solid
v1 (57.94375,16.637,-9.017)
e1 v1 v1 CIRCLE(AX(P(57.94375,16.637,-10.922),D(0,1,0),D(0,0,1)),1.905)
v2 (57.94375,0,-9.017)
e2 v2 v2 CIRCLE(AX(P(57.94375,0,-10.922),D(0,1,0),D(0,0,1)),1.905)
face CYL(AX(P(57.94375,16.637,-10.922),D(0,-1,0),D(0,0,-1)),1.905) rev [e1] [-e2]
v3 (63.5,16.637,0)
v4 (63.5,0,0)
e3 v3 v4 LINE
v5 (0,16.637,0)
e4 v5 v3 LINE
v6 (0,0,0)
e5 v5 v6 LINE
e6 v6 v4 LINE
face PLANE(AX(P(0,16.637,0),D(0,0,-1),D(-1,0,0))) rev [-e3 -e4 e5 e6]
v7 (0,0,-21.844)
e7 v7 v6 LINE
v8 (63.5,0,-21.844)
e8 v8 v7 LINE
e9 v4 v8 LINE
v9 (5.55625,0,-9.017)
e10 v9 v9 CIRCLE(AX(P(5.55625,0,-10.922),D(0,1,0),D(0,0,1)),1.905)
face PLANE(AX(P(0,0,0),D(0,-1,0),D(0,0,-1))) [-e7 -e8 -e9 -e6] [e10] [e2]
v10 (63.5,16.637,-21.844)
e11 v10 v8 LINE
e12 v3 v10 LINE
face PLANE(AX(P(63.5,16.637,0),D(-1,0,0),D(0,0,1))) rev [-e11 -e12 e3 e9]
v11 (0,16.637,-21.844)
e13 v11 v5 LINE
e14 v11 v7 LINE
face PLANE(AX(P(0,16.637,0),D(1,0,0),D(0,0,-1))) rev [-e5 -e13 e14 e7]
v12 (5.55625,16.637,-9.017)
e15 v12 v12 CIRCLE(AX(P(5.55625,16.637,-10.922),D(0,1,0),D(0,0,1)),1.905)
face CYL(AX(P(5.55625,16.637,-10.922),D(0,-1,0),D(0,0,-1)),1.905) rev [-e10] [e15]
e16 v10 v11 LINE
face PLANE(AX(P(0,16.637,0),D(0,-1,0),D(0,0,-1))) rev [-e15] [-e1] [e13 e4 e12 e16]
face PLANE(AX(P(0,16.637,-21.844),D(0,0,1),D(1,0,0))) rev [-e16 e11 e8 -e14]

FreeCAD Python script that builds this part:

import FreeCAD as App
import Part
import Sketcher
Q = App.Units.Quantity

doc = App.newDocument("Part")
body = doc.addObject("PartDesign::Body", "Body")

sketch1 = body.newObject("Sketcher::SketchObject", "Sketch")
sketch1.AttachmentSupport = (doc.getObject("XZ_Plane"), [""])
sketch1.MapMode = "FlatFace"
sketch1.addGeometry(Part.LineSegment(App.Vector(0, -21.8, 0), App.Vector(0, 0, 0)), False)
sketch1.addGeometry(Part.LineSegment(App.Vector(0, 0, 0), App.Vector(63.5, 0, 0)), False)
sketch1.addGeometry(Part.LineSegment(App.Vector(63.5, 0, 0), App.Vector(63.5, -21.8, 0)), False)
sketch1.addGeometry(Part.LineSegment(App.Vector(63.5, -21.8, 0), App.Vector(0, -21.8, 0)), False)
sketch1.addGeometry(Part.Circle(App.Vector(5.6, -10.9, 0), App.Vector(0, 0, 1), 1.9), False)
sketch1.addGeometry(Part.Circle(App.Vector(57.9, -10.9, 0), App.Vector(0, 0, 1), 1.9), False)
sketch1.addConstraint(Sketcher.Constraint("Coincident", 0, 2, 1, 1))
sketch1.addConstraint(Sketcher.Constraint("Coincident", 1, 2, 2, 1))
sketch1.addConstraint(Sketcher.Constraint("Coincident", 2, 2, 3, 1))
sketch1.addConstraint(Sketcher.Constraint("Coincident", 3, 2, 0, 1))
sketch1.addConstraint(Sketcher.Constraint("Vertical", 0))
sketch1.addConstraint(Sketcher.Constraint("Horizontal", 1))
sketch1.addConstraint(Sketcher.Constraint("Vertical", 2))
sketch1.addConstraint(Sketcher.Constraint("Horizontal", 3))
sketch1.addConstraint(Sketcher.Constraint("Coincident", 0, 2, -1, 1))
sketch1.addConstraint(Sketcher.Constraint("Equal", 4, 5))
sketch1.addConstraint(Sketcher.Constraint("Horizontal", 4, 3, 5, 3))
sketch1.addConstraint(Sketcher.Constraint("Diameter", 4, Q("0.15 in")))
sketch1.addConstraint(Sketcher.Constraint("DistanceX", 1, 1, 1, 2, Q("2.5 in")))
sketch1.addConstraint(Sketcher.Constraint("DistanceY", 0, 1, 0, 2, Q("0.86 in")))
sketch1.addConstraint(Sketcher.Constraint("DistanceY", 4, 3, -1, 1, Q("0.43 in")))
sketch1.addConstraint(Sketcher.Constraint("DistanceX", -1, 1, 4, 3, Q("0.21875 in")))
sketch1.addConstraint(Sketcher.Constraint("DistanceX", -1, 1, 5, 3, Q("2.28125 in")))
pad1 = body.newObject("PartDesign::Pad", "Pad")
pad1.Profile = sketch1
pad1.Length = Q("0.655 in")
pad1.Reversed = True

doc.recompute()
